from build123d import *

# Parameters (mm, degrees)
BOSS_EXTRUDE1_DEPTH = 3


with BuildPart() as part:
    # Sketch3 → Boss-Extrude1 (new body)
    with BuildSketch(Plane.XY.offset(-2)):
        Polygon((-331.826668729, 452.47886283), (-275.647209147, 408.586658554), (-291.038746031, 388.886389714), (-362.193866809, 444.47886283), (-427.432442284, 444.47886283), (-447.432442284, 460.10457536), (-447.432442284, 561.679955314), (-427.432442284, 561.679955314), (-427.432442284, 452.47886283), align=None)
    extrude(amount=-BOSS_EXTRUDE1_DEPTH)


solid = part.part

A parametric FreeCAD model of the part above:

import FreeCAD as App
import Part
import Sketcher

V = App.Vector
Q = App.Units.Quantity

doc = App.newDocument("Part")
body = doc.addObject("PartDesign::Body", "Body")

sketch1 = doc.addObject("Sketcher::SketchObject", "Sketch")
body.addObject(sketch1)
sketch1.AttachmentSupport = (doc.XY_Plane, [""])
sketch1.MapMode = "FlatFace"
sketch1.AttachmentOffset = App.Placement(V(0, 0, -2), App.Rotation())
sketch1.addGeometry(Part.LineSegment(V(-275.647209, 408.586659, 0), V(-331.826669, 452.478863, 0)), False)
sketch1.addGeometry(Part.LineSegment(V(-331.826669, 452.478863, 0), V(-427.432442, 452.478863, 0)), False)
sketch1.addGeometry(Part.LineSegment(V(-427.432442, 452.478863, 0), V(-427.432442, 561.679955, 0)), False)
sketch1.addGeometry(Part.LineSegment(V(-427.432442, 561.679955, 0), V(-447.432442, 561.679955, 0)), False)
sketch1.addGeometry(Part.LineSegment(V(-447.432442, 561.679955, 0), V(-447.432442, 460.104575, 0)), False)
sketch1.addGeometry(Part.LineSegment(V(-447.432442, 460.104575, 0), V(-427.432442, 444.478863, 0)), False)
sketch1.addGeometry(Part.LineSegment(V(-427.432442, 444.478863, 0), V(-362.193867, 444.478863, 0)), False)
sketch1.addGeometry(Part.LineSegment(V(-362.193867, 444.478863, 0), V(-291.038746, 388.88639, 0)), False)
sketch1.addGeometry(Part.LineSegment(V(-291.038746, 388.88639, 0), V(-275.647209, 408.586659, 0)), False)
sketch1.addConstraint(Sketcher.Constraint("Coincident", 0, 2, 1, 1))
sketch1.addConstraint(Sketcher.Constraint("Coincident", 1, 2, 2, 1))
sketch1.addConstraint(Sketcher.Constraint("Coincident", 2, 2, 3, 1))
sketch1.addConstraint(Sketcher.Constraint("Coincident", 3, 2, 4, 1))
sketch1.addConstraint(Sketcher.Constraint("Coincident", 4, 2, 5, 1))
sketch1.addConstraint(Sketcher.Constraint("Coincident", 5, 2, 6, 1))
sketch1.addConstraint(Sketcher.Constraint("Coincident", 6, 2, 7, 1))
sketch1.addConstraint(Sketcher.Constraint("Coincident", 7, 2, 8, 1))
sketch1.addConstraint(Sketcher.Constraint("Coincident", 8, 2, 0, 1))
sketch1.addConstraint(Sketcher.Constraint("Horizontal", 1))
sketch1.addConstraint(Sketcher.Constraint("Vertical", 2))
sketch1.addConstraint(Sketcher.Constraint("Horizontal", 3))
sketch1.addConstraint(Sketcher.Constraint("Vertical", 4))
sketch1.addConstraint(Sketcher.Constraint("Horizontal", 6))
sketch1.addConstraint(Sketcher.Constraint("Parallel", 0, 5))
sketch1.addConstraint(Sketcher.Constraint("Parallel", 5, 7))
sketch1.addConstraint(Sketcher.Constraint("Perpendicular", 7, 8))
sketch1.addConstraint(Sketcher.Constraint("Vertical", 2, 2, 5, 2))
sketch1.addConstraint(Sketcher.Constraint("DistanceX", 3, 2, 3, 1, Q("20 mm")))
sketch1.addConstraint(Sketcher.Constraint("Angle", 0, Q("142 deg")))
sketch1.addConstraint(Sketcher.Constraint("Distance", 8, Q("25 mm")))
sketch1.addConstraint(Sketcher.Constraint("DistanceY", 5, 2, 1, 2, Q("8 mm")))
sketch1.addConstraint(Sketcher.Constraint("DistanceY", 4, 2, 4, 1, Q("101.57538 mm")))
sketch1.addConstraint(Sketcher.Constraint("DistanceX", 1, 2, 1, 1, Q("95.605774 mm")))
sketch1.addConstraint(Sketcher.Constraint("DistanceX", 0, 2, -1, 1, Q("331.826669 mm")))
sketch1.addConstraint(Sketcher.Constraint("DistanceY", -1, 1, 7, 2, Q("388.88639 mm")))
sketch1.addConstraint(Sketcher.Constraint("DistanceX", 8, 2, -1, 1, Q("275.647209 mm")))
pad1 = doc.addObject("PartDesign::Pad", "Pad")
body.addObject(pad1)
pad1.Profile = sketch1
pad1.Length = 3
pad1.Reversed = True

doc.recompute()
